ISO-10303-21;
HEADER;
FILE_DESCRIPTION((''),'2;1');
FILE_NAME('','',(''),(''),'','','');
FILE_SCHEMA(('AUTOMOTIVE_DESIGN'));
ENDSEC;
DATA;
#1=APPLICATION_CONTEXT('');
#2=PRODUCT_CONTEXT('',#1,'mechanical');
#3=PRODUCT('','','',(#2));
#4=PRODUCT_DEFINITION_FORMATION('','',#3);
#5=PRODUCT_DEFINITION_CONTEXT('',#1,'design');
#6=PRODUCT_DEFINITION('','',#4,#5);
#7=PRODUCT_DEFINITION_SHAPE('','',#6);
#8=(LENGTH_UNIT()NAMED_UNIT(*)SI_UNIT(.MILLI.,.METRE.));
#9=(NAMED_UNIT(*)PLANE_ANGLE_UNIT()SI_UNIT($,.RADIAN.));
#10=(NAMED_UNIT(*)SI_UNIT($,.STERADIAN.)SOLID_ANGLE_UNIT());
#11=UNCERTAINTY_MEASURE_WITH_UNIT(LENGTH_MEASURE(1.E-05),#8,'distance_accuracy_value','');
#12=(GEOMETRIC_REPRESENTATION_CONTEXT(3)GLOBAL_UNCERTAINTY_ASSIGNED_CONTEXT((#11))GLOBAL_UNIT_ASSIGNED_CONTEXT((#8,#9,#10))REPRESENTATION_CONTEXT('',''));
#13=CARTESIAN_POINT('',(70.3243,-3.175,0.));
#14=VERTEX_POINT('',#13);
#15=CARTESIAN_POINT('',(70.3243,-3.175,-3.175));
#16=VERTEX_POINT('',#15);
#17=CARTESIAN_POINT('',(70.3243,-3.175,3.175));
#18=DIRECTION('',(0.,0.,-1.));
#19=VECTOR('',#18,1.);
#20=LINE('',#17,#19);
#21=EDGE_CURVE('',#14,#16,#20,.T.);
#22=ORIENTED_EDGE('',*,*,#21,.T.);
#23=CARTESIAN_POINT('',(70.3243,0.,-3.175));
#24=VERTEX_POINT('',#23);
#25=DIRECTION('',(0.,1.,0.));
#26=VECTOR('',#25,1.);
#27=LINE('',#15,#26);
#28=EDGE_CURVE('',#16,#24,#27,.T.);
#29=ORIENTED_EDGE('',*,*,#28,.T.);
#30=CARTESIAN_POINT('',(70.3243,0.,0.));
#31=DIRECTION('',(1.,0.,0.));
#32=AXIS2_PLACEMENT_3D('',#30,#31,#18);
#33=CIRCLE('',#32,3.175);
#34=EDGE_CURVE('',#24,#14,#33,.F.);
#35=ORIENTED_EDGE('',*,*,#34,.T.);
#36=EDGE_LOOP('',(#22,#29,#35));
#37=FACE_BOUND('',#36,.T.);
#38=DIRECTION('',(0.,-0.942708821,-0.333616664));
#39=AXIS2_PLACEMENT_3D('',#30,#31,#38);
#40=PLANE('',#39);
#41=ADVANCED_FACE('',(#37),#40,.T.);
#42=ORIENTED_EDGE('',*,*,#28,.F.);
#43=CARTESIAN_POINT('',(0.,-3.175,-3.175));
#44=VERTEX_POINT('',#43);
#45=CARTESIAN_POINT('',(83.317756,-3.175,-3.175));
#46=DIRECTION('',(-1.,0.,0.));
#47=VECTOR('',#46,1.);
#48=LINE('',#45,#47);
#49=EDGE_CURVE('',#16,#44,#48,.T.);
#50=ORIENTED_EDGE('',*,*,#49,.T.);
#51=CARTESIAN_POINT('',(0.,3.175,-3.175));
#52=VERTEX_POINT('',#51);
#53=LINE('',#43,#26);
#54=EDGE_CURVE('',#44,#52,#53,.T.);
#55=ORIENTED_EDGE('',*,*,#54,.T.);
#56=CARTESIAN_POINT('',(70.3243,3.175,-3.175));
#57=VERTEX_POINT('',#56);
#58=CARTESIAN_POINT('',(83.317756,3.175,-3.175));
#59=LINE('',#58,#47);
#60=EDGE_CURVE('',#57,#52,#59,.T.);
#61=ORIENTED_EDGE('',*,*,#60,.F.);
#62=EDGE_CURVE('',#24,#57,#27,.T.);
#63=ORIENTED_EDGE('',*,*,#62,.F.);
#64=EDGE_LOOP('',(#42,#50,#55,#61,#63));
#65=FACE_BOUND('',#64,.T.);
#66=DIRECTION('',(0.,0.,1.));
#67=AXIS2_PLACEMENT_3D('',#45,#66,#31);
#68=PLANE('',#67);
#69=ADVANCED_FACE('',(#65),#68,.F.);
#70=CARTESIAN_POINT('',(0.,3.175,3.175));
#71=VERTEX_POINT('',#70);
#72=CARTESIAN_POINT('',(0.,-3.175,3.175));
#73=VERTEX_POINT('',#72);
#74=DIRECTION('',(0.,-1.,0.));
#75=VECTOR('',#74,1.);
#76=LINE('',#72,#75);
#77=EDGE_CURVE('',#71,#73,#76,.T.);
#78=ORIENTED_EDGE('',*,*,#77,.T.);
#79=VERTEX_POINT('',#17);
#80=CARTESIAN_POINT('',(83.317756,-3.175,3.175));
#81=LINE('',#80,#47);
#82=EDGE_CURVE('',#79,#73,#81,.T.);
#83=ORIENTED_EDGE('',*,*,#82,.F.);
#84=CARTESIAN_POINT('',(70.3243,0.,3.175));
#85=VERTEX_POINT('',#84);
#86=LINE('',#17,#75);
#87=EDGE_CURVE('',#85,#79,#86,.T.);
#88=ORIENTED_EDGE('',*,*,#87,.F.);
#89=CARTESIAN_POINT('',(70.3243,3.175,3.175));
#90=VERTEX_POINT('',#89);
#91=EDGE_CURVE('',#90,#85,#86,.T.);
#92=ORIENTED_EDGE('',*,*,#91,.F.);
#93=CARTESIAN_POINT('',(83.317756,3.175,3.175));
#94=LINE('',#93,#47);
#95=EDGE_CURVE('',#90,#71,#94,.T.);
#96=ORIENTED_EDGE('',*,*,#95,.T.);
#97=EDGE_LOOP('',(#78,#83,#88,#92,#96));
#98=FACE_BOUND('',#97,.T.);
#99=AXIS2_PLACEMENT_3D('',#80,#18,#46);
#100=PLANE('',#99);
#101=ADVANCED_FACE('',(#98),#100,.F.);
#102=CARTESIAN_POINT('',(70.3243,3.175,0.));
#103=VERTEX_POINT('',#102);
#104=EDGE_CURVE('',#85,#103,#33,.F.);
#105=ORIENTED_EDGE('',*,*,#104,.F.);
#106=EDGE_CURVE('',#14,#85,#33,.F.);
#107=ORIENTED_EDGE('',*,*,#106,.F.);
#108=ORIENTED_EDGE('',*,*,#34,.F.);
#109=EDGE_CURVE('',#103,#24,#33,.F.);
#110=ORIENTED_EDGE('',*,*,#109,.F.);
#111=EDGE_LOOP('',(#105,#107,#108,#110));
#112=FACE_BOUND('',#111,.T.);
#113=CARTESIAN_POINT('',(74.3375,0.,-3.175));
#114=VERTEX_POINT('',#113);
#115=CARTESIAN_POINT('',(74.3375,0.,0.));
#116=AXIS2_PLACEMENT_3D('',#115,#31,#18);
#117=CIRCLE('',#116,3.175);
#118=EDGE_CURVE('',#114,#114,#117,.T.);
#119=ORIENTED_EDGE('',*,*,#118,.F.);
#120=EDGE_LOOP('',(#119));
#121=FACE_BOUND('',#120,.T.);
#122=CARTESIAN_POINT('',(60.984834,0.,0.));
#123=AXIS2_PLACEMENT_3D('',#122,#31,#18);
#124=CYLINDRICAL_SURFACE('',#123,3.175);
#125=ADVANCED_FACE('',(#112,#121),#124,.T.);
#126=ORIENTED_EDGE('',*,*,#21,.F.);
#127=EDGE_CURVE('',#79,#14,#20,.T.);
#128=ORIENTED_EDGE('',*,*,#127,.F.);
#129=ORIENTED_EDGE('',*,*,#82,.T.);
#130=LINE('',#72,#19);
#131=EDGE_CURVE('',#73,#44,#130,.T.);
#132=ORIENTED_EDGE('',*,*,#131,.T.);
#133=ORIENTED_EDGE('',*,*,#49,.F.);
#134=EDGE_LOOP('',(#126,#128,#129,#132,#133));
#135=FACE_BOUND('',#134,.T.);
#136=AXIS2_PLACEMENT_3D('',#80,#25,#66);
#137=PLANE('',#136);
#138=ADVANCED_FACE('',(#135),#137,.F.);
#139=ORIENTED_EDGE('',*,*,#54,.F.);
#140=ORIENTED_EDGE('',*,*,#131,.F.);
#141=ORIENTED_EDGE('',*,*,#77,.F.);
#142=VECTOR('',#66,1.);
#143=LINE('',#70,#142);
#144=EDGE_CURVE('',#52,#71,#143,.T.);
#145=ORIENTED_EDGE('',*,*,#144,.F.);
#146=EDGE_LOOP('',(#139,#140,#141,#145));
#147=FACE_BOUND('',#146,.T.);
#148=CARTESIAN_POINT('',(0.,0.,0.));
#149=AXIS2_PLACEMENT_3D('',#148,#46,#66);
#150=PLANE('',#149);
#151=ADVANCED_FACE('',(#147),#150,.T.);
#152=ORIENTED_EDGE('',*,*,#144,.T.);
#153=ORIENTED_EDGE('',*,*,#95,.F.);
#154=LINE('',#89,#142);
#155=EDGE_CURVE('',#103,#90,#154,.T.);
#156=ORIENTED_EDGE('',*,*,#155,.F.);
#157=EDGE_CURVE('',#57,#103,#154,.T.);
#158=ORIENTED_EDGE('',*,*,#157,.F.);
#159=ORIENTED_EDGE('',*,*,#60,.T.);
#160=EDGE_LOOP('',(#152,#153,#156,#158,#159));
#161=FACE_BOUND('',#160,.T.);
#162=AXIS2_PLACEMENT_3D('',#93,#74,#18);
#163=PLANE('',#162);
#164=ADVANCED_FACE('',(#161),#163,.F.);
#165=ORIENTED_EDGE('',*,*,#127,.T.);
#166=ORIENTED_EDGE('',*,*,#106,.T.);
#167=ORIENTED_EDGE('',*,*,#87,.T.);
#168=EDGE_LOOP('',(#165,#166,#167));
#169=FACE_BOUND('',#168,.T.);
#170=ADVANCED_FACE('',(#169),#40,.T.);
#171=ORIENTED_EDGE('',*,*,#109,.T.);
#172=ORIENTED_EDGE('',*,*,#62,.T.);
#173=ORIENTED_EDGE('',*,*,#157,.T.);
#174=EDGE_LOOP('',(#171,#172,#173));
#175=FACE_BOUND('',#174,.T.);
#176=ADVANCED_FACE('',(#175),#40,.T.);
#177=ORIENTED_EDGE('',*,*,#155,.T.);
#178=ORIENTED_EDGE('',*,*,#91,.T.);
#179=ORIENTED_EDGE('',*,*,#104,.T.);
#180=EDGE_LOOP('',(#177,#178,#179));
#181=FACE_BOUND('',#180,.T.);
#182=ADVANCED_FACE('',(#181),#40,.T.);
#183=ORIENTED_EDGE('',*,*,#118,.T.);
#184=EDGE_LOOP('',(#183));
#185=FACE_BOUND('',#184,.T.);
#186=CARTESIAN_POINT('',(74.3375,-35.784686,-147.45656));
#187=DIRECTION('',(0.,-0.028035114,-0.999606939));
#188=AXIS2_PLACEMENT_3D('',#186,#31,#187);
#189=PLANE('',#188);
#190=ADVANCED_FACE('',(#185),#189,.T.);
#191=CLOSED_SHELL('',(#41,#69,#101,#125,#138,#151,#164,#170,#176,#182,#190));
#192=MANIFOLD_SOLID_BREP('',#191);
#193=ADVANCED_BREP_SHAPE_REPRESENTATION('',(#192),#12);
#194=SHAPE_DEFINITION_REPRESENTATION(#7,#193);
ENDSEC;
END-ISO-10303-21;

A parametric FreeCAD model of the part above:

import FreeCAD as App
import Part
import Sketcher
from FreeCAD import Vector
Q = App.Units.Quantity

doc = App.newDocument("Part")
body = doc.addObject("PartDesign::Body", "Body")

# Sketch on YZ plane
sketch1 = body.newObject("Sketcher::SketchObject", "Sketch")
sketch1.AttachmentSupport = (doc.getObject("YZ_Plane"), [""])
sketch1.MapMode = "FlatFace"
sketch1.addGeometry([
    Part.LineSegment(Vector(3, 3, 0), Vector(-3, 3, 0)),
    Part.LineSegment(Vector(-3, 3, 0), Vector(-3, -3, 0)),
    Part.LineSegment(Vector(-3, -3, 0), Vector(3, -3, 0)),
    Part.LineSegment(Vector(3, -3, 0), Vector(3, 3, 0)),
], False)
sketch1.addConstraint([
    Sketcher.Constraint("Coincident", 0, 2, 1, 1),
    Sketcher.Constraint("Coincident", 1, 2, 2, 1),
    Sketcher.Constraint("Coincident", 2, 2, 3, 1),
    Sketcher.Constraint("Coincident", 3, 2, 0, 1),
    Sketcher.Constraint("Horizontal", 0),
    Sketcher.Constraint("Vertical", 1),
    Sketcher.Constraint("Horizontal", 2),
    Sketcher.Constraint("Vertical", 3),
    Sketcher.Constraint("Symmetric", 0, 2, 2, 2, -1, 1),
    Sketcher.Constraint("Equal", 2, 1),
    Sketcher.Constraint("DistanceX", 0, 2, 0, 1, Q("0.25 in")),
])
pad1 = body.newObject("PartDesign::Pad", "Pad")
pad1.Profile = sketch1
pad1.Length = 74.3375

# Sketch on YZ plane
sketch2 = body.newObject("Sketcher::SketchObject", "Sketch001")
sketch2.AttachmentSupport = (doc.getObject("YZ_Plane"), [""])
sketch2.MapMode = "FlatFace"
sketch2.AttachmentOffset = App.Placement(Vector(0, 0, 70.3243), App.Rotation())
sketch2.addGeometry([
    Part.LineSegment(Vector(3.3, 3.3, 0), Vector(-3.3, 3.3, 0)),  # 0
    Part.LineSegment(Vector(-3.3, 3.3, 0), Vector(-3.3, -3.3, 0)),  # 1
    Part.LineSegment(Vector(-3.3, -3.3, 0), Vector(3.3, -3.3, 0)),  # 2
    Part.LineSegment(Vector(3.3, -3.3, 0), Vector(3.3, 3.3, 0)),  # 3
    Part.Circle(Vector(0, 0, 0), Vector(0, 0, 1), 3.2),  # 4
], False)
sketch2.addConstraint([
    Sketcher.Constraint("Coincident", 0, 2, 1, 1),
    Sketcher.Constraint("Coincident", 1, 2, 2, 1),
    Sketcher.Constraint("Coincident", 2, 2, 3, 1),
    Sketcher.Constraint("Coincident", 3, 2, 0, 1),
    Sketcher.Constraint("Horizontal", 0),
    Sketcher.Constraint("Vertical", 1),
    Sketcher.Constraint("Horizontal", 2),
    Sketcher.Constraint("Vertical", 3),
    Sketcher.Constraint("Coincident", 4, 3, -1, 1),
    Sketcher.Constraint("Symmetric", 0, 2, 2, 2, -1, 1),
    Sketcher.Constraint("Equal", 2, 1),
    Sketcher.Constraint("Diameter", 4, Q("0.25 in")),
    Sketcher.Constraint("DistanceX", 0, 2, 0, 1, Q("0.26 in")),
])
pocket1 = body.newObject("PartDesign::Pocket", "Pocket")
pocket1.Profile = sketch2
pocket1.Length = Q("0.158 in")
pocket1.Reversed = True

doc.recompute()
